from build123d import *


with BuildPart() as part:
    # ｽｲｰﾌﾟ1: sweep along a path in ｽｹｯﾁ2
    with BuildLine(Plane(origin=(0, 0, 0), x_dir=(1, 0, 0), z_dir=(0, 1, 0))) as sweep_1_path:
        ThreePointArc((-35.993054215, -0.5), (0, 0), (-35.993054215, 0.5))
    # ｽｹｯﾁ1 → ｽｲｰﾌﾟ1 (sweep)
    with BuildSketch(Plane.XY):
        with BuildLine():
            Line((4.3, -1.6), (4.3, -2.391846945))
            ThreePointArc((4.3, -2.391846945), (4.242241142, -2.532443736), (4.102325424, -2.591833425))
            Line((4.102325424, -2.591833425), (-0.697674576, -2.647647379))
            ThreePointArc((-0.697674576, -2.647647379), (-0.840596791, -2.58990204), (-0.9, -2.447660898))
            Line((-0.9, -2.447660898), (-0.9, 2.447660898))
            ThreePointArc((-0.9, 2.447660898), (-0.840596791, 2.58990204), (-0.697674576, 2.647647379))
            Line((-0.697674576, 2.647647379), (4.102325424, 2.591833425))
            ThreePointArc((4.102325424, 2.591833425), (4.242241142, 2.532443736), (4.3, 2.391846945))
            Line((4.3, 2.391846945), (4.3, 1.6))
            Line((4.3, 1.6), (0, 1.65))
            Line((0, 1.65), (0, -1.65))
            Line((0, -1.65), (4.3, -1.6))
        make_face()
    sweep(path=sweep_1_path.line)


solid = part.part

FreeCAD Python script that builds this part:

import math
import FreeCAD as App
import Part
import Sketcher

V = App.Vector
Q = App.Units.Quantity

doc = App.newDocument("Part")
body = doc.addObject("PartDesign::Body", "Body")

# Sketch on XY plane
sketch1 = doc.addObject("Sketcher::SketchObject", "Sketch")
body.addObject(sketch1)
sketch1.AttachmentSupport = (doc.XY_Plane, [""])
sketch1.MapMode = "FlatFace"
sketch1.addGeometry([
    Part.LineSegment(V(4.3, -2.39, 0), V(4.3, -1.6, 0)),  # 0
    Part.LineSegment(V(4.3, -1.6, 0), V(0, -1.65, 0)),  # 1
    Part.LineSegment(V(0, -1.65, 0), V(0, 1.65, 0)),  # 2
    Part.LineSegment(V(0, 1.65, 0), V(4.3, 1.6, 0)),  # 3
    Part.LineSegment(V(4.3, 1.6, 0), V(4.3, 2.39, 0)),  # 4
    Part.ArcOfCircle(Part.Circle(V(4.1, 2.39, 0), V(0, 0, 1), 0.2), math.radians(0), math.radians(89)),  # 5
    Part.LineSegment(V(4.1, 2.59, 0), V(-0.7, 2.65, 0)),  # 6
    Part.ArcOfCircle(Part.Circle(V(-0.7, 2.45, 0), V(0, 0, 1), 0.2), math.radians(89), math.radians(180)),  # 7
    Part.LineSegment(V(-0.9, 2.45, 0), V(-0.9, -2.45, 0)),  # 8
    Part.ArcOfCircle(Part.Circle(V(-0.7, -2.45, 0), V(0, 0, 1), 0.2), math.radians(180), math.radians(271)),  # 9
    Part.LineSegment(V(-0.7, -2.65, 0), V(4.1, -2.59, 0)),  # 10
    Part.ArcOfCircle(Part.Circle(V(4.1, -2.39, 0), V(0, 0, 1), 0.2), math.radians(-89), math.radians(0)),  # 11
], False)
sketch1.addConstraint([
    Sketcher.Constraint("Coincident", 0, 2, 1, 1),
    Sketcher.Constraint("Coincident", 1, 2, 2, 1),
    Sketcher.Constraint("Coincident", 2, 2, 3, 1),
    Sketcher.Constraint("Coincident", 3, 2, 4, 1),
    Sketcher.Constraint("Tangent", 4, 2, 5, 1),
    Sketcher.Constraint("Tangent", 5, 2, 6, 1),
    Sketcher.Constraint("Tangent", 6, 2, 7, 1),
    Sketcher.Constraint("Tangent", 7, 2, 8, 1),
    Sketcher.Constraint("Tangent", 8, 2, 9, 1),
    Sketcher.Constraint("Tangent", 9, 2, 10, 1),
    Sketcher.Constraint("Tangent", 10, 2, 11, 1),
    Sketcher.Constraint("Tangent", 11, 2, 0, 1),
    Sketcher.Constraint("Vertical", 0),
    Sketcher.Constraint("Vertical", 2),
    Sketcher.Constraint("Vertical", 4),
    Sketcher.Constraint("Vertical", 8),
    Sketcher.Constraint("Equal", 5, 7),
    Sketcher.Constraint("Equal", 7, 9),
    Sketcher.Constraint("Equal", 9, 11),
    Sketcher.Constraint("Symmetric", 1, 2, 2, 2, -1, 1),
    Sketcher.Constraint("Symmetric", 5, 3, 11, 3, -1),
    Sketcher.Constraint("Parallel", 3, 6),
    Sketcher.Constraint("Parallel", 1, 10),
    Sketcher.Constraint("Vertical", 6, 2, 9, 2),
    Sketcher.Constraint("Radius", 5, Q("0.2 mm")),
    Sketcher.Constraint("DistanceY", 2, 1, 2, 2, Q("3.3 mm")),
    Sketcher.Constraint("DistanceX", 9, 3, 0, 2, Q("5 mm")),
    Sketcher.Constraint("DistanceX", -1, 1, 5, 3, Q("4.1 mm")),
    Sketcher.Constraint("DistanceY", 0, 2, -1, 1, Q("1.6 mm")),
    Sketcher.Constraint("DistanceY", 8, 2, 8, 1, Q("4.895322 mm")),
])

# Sketch on XZ plane
sketch2 = doc.addObject("Sketcher::SketchObject", "Sketch001")
body.addObject(sketch2)
sketch2.AttachmentSupport = (doc.XZ_Plane, [""])
sketch2.MapMode = "FlatFace"
sketch2.addGeometry(Part.ArcOfCircle(Part.Circle(V(-18, 0, 0), V(0, 0, 1), 18), math.radians(-178), math.radians(178)), False)
sketch2.addConstraint([
    Sketcher.Constraint("Symmetric", 0, 1, 0, 2, -1),
    Sketcher.Constraint("Radius", 0, Q("18 mm")),
    Sketcher.Constraint("DistanceX", 0, 3, -1, 1, Q("18 mm")),
    Sketcher.Constraint("DistanceY", 0, 1, 0, 2, Q("1 mm")),
])
doc.recompute()

additivepipe = doc.addObject("PartDesign::AdditivePipe", "AdditivePipe")
body.addObject(additivepipe)
additivepipe.Profile = sketch1
additivepipe.Spine = (sketch2, ["Edge1"])

doc.recompute()
